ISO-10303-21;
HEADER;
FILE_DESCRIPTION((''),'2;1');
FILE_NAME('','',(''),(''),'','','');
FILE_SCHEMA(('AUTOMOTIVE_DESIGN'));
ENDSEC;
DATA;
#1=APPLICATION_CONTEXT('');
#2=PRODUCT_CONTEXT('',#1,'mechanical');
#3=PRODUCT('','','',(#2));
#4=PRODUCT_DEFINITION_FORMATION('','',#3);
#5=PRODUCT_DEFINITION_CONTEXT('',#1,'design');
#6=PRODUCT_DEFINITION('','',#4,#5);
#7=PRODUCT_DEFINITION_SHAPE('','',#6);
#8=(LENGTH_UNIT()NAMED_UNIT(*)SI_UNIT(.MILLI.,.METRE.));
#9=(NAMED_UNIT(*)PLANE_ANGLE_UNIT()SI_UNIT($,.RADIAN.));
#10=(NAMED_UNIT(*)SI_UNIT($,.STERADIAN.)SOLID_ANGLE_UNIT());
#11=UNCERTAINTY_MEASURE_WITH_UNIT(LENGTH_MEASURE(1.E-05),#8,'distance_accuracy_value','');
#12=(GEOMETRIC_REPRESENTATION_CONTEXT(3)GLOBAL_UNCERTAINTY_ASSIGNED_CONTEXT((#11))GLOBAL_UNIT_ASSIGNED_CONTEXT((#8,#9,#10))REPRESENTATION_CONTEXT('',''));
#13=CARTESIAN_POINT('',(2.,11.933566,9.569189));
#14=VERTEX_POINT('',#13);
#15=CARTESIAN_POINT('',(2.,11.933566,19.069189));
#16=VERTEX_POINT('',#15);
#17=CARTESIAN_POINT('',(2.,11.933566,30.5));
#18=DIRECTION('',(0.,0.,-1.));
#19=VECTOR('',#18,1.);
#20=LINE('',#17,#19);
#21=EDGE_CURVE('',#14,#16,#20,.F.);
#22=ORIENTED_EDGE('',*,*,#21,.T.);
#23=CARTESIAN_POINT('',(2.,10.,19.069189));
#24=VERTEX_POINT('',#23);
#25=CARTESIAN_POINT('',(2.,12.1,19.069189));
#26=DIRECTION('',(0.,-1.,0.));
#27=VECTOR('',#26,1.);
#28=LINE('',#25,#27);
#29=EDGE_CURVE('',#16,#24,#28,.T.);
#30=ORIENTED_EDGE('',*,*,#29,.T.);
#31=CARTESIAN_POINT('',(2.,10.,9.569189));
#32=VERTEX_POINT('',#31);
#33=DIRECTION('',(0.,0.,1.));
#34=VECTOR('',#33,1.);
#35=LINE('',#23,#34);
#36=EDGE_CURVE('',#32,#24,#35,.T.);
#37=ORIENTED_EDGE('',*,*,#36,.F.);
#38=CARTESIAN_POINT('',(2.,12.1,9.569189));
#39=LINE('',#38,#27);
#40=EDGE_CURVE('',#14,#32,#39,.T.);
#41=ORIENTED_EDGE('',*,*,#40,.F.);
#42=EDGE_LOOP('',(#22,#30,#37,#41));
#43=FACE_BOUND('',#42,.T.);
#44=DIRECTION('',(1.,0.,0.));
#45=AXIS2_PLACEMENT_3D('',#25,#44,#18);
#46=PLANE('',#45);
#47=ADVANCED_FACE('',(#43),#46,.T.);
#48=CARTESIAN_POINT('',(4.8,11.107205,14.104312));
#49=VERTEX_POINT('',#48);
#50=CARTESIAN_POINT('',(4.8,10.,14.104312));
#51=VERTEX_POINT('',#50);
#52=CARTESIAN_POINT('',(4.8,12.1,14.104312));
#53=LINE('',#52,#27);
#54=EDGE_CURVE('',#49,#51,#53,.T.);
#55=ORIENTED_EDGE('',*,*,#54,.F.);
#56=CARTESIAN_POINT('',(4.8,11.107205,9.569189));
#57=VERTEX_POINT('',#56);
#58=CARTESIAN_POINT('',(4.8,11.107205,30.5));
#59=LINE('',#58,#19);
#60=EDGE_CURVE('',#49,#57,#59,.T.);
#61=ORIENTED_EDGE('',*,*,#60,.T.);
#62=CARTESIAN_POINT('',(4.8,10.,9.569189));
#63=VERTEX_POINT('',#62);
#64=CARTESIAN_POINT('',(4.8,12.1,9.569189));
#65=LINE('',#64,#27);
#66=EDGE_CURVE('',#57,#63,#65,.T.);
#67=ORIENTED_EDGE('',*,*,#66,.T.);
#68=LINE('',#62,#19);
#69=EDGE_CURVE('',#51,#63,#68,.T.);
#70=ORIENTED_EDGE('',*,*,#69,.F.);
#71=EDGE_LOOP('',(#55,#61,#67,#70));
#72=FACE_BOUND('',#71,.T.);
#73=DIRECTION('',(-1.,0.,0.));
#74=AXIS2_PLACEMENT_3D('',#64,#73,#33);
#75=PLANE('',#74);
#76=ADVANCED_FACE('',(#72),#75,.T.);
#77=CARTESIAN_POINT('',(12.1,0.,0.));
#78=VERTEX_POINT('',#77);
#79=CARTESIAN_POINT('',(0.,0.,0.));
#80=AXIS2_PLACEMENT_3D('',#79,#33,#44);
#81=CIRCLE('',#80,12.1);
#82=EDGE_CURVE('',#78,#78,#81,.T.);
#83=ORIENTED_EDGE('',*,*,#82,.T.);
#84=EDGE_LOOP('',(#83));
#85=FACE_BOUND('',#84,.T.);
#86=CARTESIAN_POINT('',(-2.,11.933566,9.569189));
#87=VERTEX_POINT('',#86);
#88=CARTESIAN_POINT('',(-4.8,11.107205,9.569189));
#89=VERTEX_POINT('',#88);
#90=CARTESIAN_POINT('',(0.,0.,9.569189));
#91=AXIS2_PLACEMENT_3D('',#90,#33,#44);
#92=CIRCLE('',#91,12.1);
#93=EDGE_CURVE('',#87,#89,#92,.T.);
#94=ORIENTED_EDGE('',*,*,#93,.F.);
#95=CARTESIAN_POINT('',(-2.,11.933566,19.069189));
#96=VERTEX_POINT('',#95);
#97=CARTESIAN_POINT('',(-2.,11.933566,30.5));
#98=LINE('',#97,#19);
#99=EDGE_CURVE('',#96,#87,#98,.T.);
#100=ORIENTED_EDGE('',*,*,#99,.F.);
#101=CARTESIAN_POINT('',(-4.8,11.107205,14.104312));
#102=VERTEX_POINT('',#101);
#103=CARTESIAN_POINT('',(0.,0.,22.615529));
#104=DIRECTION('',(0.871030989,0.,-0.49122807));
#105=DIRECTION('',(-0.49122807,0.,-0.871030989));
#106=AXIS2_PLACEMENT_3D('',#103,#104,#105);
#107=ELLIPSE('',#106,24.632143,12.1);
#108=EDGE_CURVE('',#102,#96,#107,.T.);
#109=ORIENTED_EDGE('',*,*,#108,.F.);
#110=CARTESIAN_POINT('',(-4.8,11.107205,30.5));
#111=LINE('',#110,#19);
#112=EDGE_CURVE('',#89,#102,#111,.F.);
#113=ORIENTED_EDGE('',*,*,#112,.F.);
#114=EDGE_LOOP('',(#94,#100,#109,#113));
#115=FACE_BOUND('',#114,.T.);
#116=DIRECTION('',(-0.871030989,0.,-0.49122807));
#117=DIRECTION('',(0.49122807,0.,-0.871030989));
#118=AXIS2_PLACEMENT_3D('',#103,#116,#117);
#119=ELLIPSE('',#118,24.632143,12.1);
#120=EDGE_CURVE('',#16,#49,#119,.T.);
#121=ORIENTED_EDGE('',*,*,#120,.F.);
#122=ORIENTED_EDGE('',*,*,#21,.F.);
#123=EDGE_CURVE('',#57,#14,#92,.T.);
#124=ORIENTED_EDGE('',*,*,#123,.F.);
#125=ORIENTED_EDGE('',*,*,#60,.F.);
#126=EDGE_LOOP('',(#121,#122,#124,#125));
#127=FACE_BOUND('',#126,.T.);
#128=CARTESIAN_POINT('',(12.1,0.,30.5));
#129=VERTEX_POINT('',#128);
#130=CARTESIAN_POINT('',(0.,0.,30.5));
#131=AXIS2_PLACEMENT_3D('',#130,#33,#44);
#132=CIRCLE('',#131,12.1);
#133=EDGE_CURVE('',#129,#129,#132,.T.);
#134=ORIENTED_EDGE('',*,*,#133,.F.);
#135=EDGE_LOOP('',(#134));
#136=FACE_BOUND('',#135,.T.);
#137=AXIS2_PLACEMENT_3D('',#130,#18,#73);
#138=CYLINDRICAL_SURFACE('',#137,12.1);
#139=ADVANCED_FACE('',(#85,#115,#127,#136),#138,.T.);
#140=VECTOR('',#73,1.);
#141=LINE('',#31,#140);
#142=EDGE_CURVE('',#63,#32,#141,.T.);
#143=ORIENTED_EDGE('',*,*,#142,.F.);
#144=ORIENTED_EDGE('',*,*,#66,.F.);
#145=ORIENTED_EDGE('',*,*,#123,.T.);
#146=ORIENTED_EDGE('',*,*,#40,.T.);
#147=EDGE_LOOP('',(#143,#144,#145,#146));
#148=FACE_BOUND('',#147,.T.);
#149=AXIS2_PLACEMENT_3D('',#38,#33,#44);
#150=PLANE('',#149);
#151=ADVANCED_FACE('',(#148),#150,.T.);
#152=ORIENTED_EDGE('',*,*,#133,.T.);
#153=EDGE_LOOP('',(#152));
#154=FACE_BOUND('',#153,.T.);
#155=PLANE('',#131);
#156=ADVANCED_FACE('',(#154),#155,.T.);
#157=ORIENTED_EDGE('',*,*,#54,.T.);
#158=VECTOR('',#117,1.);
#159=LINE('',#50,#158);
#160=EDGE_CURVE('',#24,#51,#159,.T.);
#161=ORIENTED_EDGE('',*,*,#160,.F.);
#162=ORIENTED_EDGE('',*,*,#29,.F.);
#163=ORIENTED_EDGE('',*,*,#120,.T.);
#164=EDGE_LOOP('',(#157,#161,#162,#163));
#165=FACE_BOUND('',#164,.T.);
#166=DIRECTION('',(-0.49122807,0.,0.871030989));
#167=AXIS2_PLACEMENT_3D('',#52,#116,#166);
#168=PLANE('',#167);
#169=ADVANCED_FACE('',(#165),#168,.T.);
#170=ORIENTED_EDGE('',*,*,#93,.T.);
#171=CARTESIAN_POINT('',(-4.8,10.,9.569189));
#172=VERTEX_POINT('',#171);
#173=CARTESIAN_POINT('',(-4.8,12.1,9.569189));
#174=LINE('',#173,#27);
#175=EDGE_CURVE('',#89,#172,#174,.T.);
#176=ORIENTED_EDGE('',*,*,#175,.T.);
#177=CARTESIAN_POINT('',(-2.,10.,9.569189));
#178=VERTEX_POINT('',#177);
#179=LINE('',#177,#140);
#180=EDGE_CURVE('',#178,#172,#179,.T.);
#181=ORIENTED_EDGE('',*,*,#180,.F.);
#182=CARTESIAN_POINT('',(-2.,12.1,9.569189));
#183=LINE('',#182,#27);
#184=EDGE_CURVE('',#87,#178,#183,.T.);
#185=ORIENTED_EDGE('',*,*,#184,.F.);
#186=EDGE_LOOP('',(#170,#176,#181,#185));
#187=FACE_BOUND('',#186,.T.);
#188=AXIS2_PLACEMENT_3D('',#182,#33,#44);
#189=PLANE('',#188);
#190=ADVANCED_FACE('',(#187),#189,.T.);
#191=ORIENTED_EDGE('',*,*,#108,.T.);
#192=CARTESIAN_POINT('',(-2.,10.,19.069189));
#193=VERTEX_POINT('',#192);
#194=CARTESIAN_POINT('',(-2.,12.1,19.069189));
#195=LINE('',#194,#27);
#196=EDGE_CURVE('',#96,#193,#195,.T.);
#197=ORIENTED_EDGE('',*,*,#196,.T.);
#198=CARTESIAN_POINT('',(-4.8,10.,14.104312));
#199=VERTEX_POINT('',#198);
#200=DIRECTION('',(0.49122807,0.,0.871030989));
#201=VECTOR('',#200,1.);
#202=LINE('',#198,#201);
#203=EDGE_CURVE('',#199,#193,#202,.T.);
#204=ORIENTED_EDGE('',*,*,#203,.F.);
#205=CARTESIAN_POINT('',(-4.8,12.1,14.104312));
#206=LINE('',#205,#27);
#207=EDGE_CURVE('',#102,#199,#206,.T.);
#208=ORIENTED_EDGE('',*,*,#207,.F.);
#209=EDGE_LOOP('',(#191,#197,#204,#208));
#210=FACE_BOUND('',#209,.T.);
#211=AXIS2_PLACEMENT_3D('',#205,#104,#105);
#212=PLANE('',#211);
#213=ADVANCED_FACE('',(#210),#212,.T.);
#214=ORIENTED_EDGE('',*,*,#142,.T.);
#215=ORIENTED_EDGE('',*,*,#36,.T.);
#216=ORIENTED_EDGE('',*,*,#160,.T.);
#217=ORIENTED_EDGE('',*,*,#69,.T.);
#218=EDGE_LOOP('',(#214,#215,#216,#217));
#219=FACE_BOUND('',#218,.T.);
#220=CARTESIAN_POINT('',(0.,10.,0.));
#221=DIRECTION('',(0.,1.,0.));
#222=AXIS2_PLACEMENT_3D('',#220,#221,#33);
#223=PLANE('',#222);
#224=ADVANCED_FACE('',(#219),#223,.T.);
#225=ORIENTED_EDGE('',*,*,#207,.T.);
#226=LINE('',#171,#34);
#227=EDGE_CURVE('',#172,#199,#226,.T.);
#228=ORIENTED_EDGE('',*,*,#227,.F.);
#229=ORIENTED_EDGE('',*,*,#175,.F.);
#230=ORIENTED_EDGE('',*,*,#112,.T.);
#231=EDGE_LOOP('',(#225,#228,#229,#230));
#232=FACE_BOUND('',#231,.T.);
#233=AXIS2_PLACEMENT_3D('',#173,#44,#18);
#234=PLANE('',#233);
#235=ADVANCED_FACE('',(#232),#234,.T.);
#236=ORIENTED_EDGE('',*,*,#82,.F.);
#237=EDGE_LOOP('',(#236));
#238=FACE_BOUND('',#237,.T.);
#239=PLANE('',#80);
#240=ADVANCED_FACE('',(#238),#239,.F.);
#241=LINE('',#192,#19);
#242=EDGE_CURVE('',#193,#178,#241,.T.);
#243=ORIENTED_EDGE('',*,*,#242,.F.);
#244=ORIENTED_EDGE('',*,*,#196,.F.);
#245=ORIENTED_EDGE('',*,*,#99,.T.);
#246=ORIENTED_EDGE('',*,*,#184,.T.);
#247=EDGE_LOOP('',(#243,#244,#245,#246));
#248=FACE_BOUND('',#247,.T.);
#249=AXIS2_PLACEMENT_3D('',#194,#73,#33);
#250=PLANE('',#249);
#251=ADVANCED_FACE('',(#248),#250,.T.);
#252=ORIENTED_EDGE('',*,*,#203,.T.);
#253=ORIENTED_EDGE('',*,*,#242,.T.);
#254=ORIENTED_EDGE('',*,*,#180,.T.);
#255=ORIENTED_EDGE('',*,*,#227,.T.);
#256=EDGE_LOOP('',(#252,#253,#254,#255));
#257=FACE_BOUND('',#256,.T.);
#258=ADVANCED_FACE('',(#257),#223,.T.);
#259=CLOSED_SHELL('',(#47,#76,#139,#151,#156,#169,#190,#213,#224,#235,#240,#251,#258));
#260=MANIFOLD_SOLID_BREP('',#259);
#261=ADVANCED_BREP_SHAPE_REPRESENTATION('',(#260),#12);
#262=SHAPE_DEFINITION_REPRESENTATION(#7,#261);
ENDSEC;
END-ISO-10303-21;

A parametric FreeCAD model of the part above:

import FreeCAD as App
import Part
import Sketcher


def add_polygon(sketch, points):
    """Adds a closed chain of lines whose ends are joined by coincident constraints."""
    first, n = sketch.GeometryCount, len(points)
    for a, b in zip(points, points[1:] + points[:1]):
        sketch.addGeometry(Part.LineSegment(App.Vector(*a, 0), App.Vector(*b, 0)), False)
    for i in range(n):
        sketch.addConstraint(Sketcher.Constraint("Coincident", first + i, 2, first + (i + 1) % n, 1))

doc = App.newDocument("Part")
body = doc.addObject("PartDesign::Body", "Body")

# Sketch on XY plane
sketch1 = doc.addObject("Sketcher::SketchObject", "Sketch")
body.addObject(sketch1)
sketch1.AttachmentSupport = (doc.XY_Plane, [""])
sketch1.MapMode = "FlatFace"
sketch1.addGeometry(Part.Circle(App.Vector(0, 0, 0), App.Vector(0, 0, 1), 12), False)
sketch1.addConstraint([
    Sketcher.Constraint("Coincident", 0, 3, -1, 1),
    Sketcher.Constraint("Diameter", 0, 24.2),
])
pad1 = doc.addObject("PartDesign::Pad", "Pad")
body.addObject(pad1)
pad1.Profile = sketch1
pad1.Length = 30.5

# Sketch on XZ plane
sketch2 = doc.addObject("Sketcher::SketchObject", "Sketch001")
body.addObject(sketch2)
sketch2.AttachmentSupport = (doc.XZ_Plane, [""])
sketch2.MapMode = "FlatFace"
sketch2.AttachmentOffset = App.Placement(App.Vector(0, 0, -10), App.Rotation())
add_polygon(sketch2, [(-2, 9.6), (-4.8, 9.6), (-4.8, 14.1), (-2, 19.1)])  # lines 0-3
add_polygon(sketch2, [(2, 19.1), (4.8, 14.1), (4.8, 9.6), (2, 9.6)])  # lines 4-7
sketch2.addConstraint([
    Sketcher.Constraint("Horizontal", 0),
    Sketcher.Constraint("Vertical", 1),
    Sketcher.Constraint("Vertical", 3),
    Sketcher.Constraint("Vertical", 5),
    Sketcher.Constraint("Horizontal", 6),
    Sketcher.Constraint("Vertical", 7),
    Sketcher.Constraint("Symmetric", 1, 2, 4, 2, -2),
    Sketcher.Constraint("Symmetric", 3, 2, 6, 2, -2),
    Sketcher.Constraint("Horizontal", 2, 2, 7, 2),
    Sketcher.Constraint("DistanceX", 0, 2, 0, 1, 2.8),
    Sketcher.Constraint("DistanceY", 3, 2, 3, 1, 9.5),
    Sketcher.Constraint("DistanceX", 2, 2, -1, 1, 2.0),
    Sketcher.Constraint("Distance", 2, 5.7),
    Sketcher.Constraint("DistanceY", -1, 1, 0, 2, 9.569189),
])
pocket1 = doc.addObject("PartDesign::Pocket", "Pocket")
body.addObject(pocket1)
pocket1.Profile = sketch2
pocket1.Type = "ThroughAll"

doc.recompute()
